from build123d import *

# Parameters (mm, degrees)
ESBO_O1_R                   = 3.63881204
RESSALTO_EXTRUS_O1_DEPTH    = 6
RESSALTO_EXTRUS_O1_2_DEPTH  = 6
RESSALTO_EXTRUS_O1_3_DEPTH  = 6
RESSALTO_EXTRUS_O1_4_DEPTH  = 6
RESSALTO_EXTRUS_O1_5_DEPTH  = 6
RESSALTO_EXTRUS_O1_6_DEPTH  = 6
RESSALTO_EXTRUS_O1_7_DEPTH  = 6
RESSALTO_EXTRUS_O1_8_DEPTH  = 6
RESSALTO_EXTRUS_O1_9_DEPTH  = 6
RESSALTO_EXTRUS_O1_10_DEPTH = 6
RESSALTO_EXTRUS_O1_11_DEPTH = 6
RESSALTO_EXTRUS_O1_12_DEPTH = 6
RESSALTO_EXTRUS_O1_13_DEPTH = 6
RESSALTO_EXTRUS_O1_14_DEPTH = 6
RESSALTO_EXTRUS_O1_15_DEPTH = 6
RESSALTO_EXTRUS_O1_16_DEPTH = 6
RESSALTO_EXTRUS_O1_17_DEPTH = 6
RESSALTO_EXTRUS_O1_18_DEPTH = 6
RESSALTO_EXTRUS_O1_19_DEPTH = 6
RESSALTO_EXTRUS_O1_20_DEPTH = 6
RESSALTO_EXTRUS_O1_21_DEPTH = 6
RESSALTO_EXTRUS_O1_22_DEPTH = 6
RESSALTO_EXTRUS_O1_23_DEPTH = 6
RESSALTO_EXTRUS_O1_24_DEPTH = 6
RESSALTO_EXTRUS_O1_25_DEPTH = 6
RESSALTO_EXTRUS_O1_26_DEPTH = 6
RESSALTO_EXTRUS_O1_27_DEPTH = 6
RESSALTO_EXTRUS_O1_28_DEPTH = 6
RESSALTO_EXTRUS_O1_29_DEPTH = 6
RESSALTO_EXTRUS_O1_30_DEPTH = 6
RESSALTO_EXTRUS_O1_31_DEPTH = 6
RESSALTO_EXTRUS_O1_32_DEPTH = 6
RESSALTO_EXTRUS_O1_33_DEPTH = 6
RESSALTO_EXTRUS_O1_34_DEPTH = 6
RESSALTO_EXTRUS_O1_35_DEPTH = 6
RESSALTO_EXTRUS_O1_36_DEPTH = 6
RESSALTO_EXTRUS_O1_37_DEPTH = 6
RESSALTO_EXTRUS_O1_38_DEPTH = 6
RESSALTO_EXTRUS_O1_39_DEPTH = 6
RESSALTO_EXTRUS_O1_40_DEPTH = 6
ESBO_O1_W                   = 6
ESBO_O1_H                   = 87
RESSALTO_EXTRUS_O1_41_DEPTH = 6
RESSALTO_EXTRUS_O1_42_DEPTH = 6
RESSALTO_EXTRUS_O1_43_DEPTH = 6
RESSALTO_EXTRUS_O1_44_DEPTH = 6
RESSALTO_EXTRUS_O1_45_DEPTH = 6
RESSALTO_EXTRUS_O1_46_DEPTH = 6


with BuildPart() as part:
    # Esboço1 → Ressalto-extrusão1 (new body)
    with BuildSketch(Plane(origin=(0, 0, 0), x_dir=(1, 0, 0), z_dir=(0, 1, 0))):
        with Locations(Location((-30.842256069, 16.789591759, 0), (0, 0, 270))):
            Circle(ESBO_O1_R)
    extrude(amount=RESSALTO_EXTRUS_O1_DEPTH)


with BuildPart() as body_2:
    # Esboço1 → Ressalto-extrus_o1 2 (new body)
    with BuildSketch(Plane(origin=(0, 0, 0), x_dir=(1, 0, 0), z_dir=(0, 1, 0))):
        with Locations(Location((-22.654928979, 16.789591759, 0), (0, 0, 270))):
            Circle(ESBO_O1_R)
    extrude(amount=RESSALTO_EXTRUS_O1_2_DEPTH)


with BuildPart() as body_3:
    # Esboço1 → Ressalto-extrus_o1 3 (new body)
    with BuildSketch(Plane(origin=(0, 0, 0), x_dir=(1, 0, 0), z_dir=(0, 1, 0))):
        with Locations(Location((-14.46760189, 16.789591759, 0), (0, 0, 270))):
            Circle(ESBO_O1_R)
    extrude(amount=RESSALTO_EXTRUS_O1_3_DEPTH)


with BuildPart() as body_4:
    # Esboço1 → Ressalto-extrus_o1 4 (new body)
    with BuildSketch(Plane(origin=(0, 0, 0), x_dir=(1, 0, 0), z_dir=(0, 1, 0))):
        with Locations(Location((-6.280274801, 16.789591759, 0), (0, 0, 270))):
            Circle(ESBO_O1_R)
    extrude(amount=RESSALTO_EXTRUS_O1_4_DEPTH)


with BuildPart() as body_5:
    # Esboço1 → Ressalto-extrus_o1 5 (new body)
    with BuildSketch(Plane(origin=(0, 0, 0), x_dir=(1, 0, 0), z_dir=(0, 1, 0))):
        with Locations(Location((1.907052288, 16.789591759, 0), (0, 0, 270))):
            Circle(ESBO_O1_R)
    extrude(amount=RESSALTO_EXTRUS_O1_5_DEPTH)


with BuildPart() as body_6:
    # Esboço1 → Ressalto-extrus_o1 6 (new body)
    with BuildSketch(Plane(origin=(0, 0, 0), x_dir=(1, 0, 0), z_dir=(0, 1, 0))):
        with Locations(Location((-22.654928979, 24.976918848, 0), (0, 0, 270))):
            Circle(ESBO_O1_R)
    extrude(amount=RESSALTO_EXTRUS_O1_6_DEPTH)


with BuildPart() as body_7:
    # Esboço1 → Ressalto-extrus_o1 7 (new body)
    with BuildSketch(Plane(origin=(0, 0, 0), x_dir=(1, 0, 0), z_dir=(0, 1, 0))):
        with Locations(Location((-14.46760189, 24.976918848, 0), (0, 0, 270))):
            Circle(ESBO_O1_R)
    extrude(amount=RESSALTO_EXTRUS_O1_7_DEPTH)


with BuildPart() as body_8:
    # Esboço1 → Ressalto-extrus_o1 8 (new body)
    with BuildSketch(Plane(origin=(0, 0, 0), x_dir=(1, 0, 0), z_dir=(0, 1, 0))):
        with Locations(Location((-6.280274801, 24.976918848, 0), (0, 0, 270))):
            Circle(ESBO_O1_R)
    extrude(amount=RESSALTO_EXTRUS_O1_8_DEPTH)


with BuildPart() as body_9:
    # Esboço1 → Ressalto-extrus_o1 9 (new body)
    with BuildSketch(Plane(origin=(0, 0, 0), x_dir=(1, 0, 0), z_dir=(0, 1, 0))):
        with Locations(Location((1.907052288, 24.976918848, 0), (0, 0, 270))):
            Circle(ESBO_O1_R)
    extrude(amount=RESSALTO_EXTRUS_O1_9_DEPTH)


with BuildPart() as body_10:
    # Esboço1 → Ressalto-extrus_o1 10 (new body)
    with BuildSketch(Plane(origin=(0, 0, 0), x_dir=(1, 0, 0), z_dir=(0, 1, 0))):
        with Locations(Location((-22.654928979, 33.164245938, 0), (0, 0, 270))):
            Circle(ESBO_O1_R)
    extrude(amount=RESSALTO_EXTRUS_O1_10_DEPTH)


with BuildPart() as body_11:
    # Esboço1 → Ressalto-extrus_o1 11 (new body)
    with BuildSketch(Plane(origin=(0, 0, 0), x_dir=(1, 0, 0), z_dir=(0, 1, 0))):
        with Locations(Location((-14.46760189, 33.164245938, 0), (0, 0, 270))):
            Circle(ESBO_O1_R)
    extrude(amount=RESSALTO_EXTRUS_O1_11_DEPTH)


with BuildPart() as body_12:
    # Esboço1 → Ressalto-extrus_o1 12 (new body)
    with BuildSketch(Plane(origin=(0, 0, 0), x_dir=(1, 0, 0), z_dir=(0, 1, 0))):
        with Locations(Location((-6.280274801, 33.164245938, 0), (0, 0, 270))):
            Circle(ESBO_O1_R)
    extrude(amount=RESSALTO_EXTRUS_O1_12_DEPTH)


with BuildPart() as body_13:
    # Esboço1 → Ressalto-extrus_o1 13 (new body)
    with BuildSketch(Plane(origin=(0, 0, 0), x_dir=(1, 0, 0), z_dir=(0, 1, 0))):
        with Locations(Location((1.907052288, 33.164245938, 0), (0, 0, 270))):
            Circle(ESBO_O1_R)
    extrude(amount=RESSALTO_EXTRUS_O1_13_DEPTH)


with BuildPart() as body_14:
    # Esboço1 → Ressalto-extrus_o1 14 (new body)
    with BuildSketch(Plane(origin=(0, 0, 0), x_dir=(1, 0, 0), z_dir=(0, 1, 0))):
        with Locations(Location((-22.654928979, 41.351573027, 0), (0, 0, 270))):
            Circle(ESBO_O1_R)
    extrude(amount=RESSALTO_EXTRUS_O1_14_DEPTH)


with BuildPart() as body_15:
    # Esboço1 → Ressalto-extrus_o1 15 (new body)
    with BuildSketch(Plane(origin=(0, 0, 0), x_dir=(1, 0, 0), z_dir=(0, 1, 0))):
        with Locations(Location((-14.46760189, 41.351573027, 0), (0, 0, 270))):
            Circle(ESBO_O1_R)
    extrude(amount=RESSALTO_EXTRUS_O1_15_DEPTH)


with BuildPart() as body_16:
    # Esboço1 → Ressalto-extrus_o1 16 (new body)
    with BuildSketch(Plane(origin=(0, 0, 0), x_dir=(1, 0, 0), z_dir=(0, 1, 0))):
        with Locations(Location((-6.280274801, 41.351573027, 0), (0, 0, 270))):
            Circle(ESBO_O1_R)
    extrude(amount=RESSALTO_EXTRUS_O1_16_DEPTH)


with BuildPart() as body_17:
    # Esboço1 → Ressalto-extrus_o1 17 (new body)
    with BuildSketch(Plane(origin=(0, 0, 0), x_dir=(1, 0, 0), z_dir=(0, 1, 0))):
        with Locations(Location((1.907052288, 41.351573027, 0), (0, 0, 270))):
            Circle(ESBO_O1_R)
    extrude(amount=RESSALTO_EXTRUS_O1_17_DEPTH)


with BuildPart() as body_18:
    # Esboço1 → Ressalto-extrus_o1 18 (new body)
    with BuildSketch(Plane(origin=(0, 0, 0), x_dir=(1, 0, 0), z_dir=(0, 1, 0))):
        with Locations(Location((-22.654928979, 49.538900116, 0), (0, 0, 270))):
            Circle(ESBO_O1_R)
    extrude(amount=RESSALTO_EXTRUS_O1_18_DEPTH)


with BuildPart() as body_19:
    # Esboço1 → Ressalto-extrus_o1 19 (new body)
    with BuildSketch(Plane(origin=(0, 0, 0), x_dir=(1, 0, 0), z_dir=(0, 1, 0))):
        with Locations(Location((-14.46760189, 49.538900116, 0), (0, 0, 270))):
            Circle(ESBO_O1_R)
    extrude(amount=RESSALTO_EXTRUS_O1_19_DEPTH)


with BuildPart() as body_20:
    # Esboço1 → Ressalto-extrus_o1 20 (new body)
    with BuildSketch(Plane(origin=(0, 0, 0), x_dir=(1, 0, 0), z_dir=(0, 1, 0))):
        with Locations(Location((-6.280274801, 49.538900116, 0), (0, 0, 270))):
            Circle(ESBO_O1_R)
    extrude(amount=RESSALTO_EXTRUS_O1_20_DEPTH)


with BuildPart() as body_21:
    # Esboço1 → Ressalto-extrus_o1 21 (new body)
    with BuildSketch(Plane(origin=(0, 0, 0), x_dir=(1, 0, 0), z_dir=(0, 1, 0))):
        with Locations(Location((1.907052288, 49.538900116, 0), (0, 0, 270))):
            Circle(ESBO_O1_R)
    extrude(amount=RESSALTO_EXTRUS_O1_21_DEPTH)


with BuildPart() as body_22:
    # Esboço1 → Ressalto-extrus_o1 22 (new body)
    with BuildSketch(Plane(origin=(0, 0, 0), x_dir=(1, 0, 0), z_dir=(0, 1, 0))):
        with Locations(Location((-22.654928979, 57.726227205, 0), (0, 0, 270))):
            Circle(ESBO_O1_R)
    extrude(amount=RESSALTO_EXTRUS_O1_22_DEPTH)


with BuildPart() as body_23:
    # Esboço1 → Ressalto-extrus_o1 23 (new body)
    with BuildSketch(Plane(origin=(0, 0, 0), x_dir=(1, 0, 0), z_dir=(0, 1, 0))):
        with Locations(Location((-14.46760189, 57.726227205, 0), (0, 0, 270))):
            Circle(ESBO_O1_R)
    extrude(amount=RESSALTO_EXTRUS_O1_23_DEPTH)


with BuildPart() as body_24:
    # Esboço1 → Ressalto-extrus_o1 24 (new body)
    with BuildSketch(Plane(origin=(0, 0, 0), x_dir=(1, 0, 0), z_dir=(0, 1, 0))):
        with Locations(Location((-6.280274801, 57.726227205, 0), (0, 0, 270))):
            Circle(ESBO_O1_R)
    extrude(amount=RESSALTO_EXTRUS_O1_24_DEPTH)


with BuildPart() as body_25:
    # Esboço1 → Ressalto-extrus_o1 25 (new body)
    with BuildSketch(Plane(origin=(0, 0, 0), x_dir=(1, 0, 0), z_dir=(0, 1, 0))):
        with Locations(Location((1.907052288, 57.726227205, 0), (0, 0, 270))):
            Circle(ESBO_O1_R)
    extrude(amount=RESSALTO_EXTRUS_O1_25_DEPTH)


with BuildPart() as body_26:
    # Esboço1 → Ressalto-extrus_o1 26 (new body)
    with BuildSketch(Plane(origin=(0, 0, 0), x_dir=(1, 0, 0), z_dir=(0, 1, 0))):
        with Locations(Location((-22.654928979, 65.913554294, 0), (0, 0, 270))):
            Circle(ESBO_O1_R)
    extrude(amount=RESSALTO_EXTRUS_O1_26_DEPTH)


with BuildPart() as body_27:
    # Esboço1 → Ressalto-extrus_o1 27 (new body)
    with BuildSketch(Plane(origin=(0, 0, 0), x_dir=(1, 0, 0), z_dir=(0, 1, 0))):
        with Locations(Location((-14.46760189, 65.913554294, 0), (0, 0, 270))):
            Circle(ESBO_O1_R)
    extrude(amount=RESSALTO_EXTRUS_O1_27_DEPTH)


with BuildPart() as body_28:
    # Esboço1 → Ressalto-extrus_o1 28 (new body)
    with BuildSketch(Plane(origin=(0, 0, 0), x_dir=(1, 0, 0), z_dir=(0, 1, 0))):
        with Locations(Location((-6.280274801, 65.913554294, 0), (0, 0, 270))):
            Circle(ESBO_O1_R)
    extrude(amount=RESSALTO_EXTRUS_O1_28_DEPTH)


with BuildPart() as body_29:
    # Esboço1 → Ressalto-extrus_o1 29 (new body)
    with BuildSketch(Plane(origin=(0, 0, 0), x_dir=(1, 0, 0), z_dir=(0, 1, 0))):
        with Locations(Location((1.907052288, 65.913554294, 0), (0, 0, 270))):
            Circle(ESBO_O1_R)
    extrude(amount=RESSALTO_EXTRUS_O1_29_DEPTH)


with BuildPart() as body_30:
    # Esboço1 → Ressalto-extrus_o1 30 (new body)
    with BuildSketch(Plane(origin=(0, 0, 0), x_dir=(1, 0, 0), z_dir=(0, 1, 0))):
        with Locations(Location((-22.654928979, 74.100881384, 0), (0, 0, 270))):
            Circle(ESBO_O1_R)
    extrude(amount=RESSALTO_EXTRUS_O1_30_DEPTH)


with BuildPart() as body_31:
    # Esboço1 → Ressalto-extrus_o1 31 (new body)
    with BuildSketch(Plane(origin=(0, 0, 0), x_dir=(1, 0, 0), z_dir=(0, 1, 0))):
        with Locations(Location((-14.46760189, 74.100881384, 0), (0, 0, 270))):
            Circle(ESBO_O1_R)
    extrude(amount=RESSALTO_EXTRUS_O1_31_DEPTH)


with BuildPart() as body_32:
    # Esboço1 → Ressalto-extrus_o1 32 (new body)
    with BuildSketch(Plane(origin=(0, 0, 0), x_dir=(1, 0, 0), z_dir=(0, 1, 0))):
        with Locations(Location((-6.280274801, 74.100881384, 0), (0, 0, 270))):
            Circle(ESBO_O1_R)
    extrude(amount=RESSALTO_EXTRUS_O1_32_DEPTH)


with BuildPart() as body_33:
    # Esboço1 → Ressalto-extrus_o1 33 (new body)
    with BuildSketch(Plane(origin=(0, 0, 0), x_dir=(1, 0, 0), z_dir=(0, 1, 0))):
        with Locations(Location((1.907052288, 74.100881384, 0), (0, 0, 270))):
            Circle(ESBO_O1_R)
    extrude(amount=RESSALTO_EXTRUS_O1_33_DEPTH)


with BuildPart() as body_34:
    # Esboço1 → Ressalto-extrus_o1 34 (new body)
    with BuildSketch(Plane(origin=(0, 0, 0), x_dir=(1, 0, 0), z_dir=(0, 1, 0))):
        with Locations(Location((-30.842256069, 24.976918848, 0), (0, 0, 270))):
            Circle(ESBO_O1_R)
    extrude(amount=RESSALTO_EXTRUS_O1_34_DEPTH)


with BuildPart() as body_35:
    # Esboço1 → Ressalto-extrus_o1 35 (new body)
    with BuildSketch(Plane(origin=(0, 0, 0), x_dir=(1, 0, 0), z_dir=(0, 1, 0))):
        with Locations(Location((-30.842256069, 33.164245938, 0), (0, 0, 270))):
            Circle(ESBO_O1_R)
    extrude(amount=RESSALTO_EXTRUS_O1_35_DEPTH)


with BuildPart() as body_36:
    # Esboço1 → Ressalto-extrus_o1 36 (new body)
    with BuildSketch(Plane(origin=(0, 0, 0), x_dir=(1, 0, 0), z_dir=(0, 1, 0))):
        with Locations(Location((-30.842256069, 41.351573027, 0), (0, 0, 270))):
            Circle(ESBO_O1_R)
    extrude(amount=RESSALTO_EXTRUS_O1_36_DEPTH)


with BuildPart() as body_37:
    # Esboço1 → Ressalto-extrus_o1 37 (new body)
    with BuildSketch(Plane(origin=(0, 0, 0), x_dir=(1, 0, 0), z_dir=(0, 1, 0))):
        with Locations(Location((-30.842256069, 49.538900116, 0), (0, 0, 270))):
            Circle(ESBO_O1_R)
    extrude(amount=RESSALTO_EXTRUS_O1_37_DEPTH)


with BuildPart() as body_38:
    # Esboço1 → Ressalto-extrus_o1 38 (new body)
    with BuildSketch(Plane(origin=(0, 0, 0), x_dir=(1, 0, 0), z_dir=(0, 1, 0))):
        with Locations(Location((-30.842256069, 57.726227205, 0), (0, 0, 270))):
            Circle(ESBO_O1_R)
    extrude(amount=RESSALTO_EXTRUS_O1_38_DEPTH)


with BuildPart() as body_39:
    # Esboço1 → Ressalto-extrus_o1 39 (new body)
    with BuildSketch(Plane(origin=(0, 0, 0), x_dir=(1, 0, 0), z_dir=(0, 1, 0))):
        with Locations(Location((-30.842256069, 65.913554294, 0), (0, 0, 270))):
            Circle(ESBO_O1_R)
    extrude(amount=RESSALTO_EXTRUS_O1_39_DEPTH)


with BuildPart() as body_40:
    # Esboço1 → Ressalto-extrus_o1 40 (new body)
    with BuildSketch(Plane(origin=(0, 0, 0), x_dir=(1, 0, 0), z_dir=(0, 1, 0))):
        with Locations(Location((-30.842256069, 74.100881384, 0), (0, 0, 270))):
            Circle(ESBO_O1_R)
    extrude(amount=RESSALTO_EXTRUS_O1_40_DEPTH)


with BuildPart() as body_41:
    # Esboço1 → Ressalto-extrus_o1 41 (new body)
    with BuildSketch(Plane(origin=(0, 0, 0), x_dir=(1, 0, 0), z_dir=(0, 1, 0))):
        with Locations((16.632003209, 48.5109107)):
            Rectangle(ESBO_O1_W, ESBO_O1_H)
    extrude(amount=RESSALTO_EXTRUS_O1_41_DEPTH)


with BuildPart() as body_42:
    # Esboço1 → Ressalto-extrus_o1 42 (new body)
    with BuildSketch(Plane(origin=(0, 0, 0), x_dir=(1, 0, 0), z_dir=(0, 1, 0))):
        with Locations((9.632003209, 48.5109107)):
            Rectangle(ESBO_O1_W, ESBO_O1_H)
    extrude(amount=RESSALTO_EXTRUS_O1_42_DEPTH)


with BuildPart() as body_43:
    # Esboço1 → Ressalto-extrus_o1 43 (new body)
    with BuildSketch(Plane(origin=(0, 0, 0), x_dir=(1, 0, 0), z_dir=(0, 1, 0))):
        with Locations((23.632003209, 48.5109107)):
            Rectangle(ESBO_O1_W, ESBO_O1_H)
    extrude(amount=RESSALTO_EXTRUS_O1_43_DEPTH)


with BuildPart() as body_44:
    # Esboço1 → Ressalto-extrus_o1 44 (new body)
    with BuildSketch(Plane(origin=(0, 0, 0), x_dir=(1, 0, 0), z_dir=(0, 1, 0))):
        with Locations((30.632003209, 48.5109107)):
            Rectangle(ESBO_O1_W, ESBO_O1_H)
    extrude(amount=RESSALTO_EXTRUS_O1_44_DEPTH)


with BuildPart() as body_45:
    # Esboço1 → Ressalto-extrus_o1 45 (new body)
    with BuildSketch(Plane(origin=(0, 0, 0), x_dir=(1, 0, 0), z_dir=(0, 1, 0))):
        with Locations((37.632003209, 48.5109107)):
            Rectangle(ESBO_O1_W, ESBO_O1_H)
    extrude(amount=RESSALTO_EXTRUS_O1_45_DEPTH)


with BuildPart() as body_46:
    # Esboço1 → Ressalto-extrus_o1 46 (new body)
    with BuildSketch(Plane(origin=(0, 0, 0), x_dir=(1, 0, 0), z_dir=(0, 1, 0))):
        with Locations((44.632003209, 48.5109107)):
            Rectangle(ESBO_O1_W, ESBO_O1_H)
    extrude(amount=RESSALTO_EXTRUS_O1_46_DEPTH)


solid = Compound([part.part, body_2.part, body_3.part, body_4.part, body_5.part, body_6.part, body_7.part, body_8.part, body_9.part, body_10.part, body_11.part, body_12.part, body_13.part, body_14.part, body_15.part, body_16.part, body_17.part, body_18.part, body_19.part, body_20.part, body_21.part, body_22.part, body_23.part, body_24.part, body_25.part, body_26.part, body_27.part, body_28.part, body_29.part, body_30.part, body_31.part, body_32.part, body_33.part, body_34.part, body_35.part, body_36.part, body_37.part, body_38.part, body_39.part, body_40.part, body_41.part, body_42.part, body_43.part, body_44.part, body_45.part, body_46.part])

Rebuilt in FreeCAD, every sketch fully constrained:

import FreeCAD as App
import Part
import Sketcher

doc = App.newDocument("Part")
body = doc.addObject("PartDesign::Body", "Body")

# Sketch on XZ plane
sketch1 = body.newObject("Sketcher::SketchObject", "Sketch")
sketch1.AttachmentSupport = (doc.getObject("XZ_Plane"), [""])
sketch1.MapMode = "FlatFace"
sketch1.addGeometry(Part.Circle(App.Vector(-30.842256, -16.789592, 0), App.Vector(0, 0, 1), 3.638812), False)
sketch1.addConstraint(Sketcher.Constraint("Diameter", 0, 7.277624))
sketch1.addConstraint(Sketcher.Constraint("DistanceY", 0, 3, -1, 1, 16.789592))
sketch1.addConstraint(Sketcher.Constraint("DistanceX", 0, 3, -1, 1, 30.842256))
pad1 = body.newObject("PartDesign::Pad", "Pad")
pad1.Profile = sketch1
pad1.Length = 6
pad1.Reversed = True
body2 = doc.addObject("PartDesign::Body", "Body001")

# Sketch on XZ plane
sketch2 = body2.newObject("Sketcher::SketchObject", "Sketch001")
sketch2.AttachmentSupport = (doc.getObject("XZ_Plane001"), [""])
sketch2.MapMode = "FlatFace"
sketch2.addGeometry(Part.Circle(App.Vector(-22.654929, -16.789592, 0), App.Vector(0, 0, 1), 3.638812), False)
sketch2.addConstraint(Sketcher.Constraint("Diameter", 0, 7.277624))
sketch2.addConstraint(Sketcher.Constraint("DistanceX", 0, 3, -1, 1, 22.654929))
sketch2.addConstraint(Sketcher.Constraint("DistanceY", 0, 3, -1, 1, 16.789592))
pad2 = body2.newObject("PartDesign::Pad", "Pad001")
pad2.Profile = sketch2
pad2.Length = 6
pad2.Reversed = True
body3 = doc.addObject("PartDesign::Body", "Body002")

# Sketch on XZ plane
sketch3 = body3.newObject("Sketcher::SketchObject", "Sketch002")
sketch3.AttachmentSupport = (doc.getObject("XZ_Plane002"), [""])
sketch3.MapMode = "FlatFace"
sketch3.addGeometry(Part.Circle(App.Vector(-14.467602, -16.789592, 0), App.Vector(0, 0, 1), 3.638812), False)
sketch3.addConstraint(Sketcher.Constraint("Diameter", 0, 7.277624))
sketch3.addConstraint(Sketcher.Constraint("DistanceX", 0, 3, -1, 1, 14.467602))
sketch3.addConstraint(Sketcher.Constraint("DistanceY", 0, 3, -1, 1, 16.789592))
pad3 = body3.newObject("PartDesign::Pad", "Pad002")
pad3.Profile = sketch3
pad3.Length = 6
pad3.Reversed = True
body4 = doc.addObject("PartDesign::Body", "Body003")

# Sketch on XZ plane
sketch4 = body4.newObject("Sketcher::SketchObject", "Sketch003")
sketch4.AttachmentSupport = (doc.getObject("XZ_Plane003"), [""])
sketch4.MapMode = "FlatFace"
sketch4.addGeometry(Part.Circle(App.Vector(-6.280275, -16.789592, 0), App.Vector(0, 0, 1), 3.638812), False)
sketch4.addConstraint(Sketcher.Constraint("Diameter", 0, 7.277624))
sketch4.addConstraint(Sketcher.Constraint("DistanceY", 0, 3, -1, 1, 16.789592))
sketch4.addConstraint(Sketcher.Constraint("DistanceX", 0, 3, -1, 1, 6.280275))
pad4 = body4.newObject("PartDesign::Pad", "Pad003")
pad4.Profile = sketch4
pad4.Length = 6
pad4.Reversed = True
body5 = doc.addObject("PartDesign::Body", "Body004")

# Sketch on XZ plane
sketch5 = body5.newObject("Sketcher::SketchObject", "Sketch004")
sketch5.AttachmentSupport = (doc.getObject("XZ_Plane004"), [""])
sketch5.MapMode = "FlatFace"
sketch5.addGeometry(Part.Circle(App.Vector(1.907052, -16.789592, 0), App.Vector(0, 0, 1), 3.638812), False)
sketch5.addConstraint(Sketcher.Constraint("Diameter", 0, 7.277624))
sketch5.addConstraint(Sketcher.Constraint("DistanceY", 0, 3, -1, 1, 16.789592))
sketch5.addConstraint(Sketcher.Constraint("DistanceX", -1, 1, 0, 3, 1.907052))
pad5 = body5.newObject("PartDesign::Pad", "Pad004")
pad5.Profile = sketch5
pad5.Length = 6
pad5.Reversed = True
body6 = doc.addObject("PartDesign::Body", "Body005")

# Sketch on XZ plane
sketch6 = body6.newObject("Sketcher::SketchObject", "Sketch005")
sketch6.AttachmentSupport = (doc.getObject("XZ_Plane005"), [""])
sketch6.MapMode = "FlatFace"
sketch6.addGeometry(Part.Circle(App.Vector(-22.654929, -24.976919, 0), App.Vector(0, 0, 1), 3.638812), False)
sketch6.addConstraint(Sketcher.Constraint("Diameter", 0, 7.277624))
sketch6.addConstraint(Sketcher.Constraint("DistanceX", 0, 3, -1, 1, 22.654929))
sketch6.addConstraint(Sketcher.Constraint("DistanceY", 0, 3, -1, 1, 24.976919))
pad6 = body6.newObject("PartDesign::Pad", "Pad005")
pad6.Profile = sketch6
pad6.Length = 6
pad6.Reversed = True
body7 = doc.addObject("PartDesign::Body", "Body006")

# Sketch on XZ plane
sketch7 = body7.newObject("Sketcher::SketchObject", "Sketch006")
sketch7.AttachmentSupport = (doc.getObject("XZ_Plane006"), [""])
sketch7.MapMode = "FlatFace"
sketch7.addGeometry(Part.Circle(App.Vector(-14.467602, -24.976919, 0), App.Vector(0, 0, 1), 3.638812), False)
sketch7.addConstraint(Sketcher.Constraint("Diameter", 0, 7.277624))
sketch7.addConstraint(Sketcher.Constraint("DistanceX", 0, 3, -1, 1, 14.467602))
sketch7.addConstraint(Sketcher.Constraint("DistanceY", 0, 3, -1, 1, 24.976919))
pad7 = body7.newObject("PartDesign::Pad", "Pad006")
pad7.Profile = sketch7
pad7.Length = 6
pad7.Reversed = True
body8 = doc.addObject("PartDesign::Body", "Body007")

# Sketch on XZ plane
sketch8 = body8.newObject("Sketcher::SketchObject", "Sketch007")
sketch8.AttachmentSupport = (doc.getObject("XZ_Plane007"), [""])
sketch8.MapMode = "FlatFace"
sketch8.addGeometry(Part.Circle(App.Vector(-6.280275, -24.976919, 0), App.Vector(0, 0, 1), 3.638812), False)
sketch8.addConstraint(Sketcher.Constraint("Diameter", 0, 7.277624))
sketch8.addConstraint(Sketcher.Constraint("DistanceY", 0, 3, -1, 1, 24.976919))
sketch8.addConstraint(Sketcher.Constraint("DistanceX", 0, 3, -1, 1, 6.280275))
pad8 = body8.newObject("PartDesign::Pad", "Pad007")
pad8.Profile = sketch8
pad8.Length = 6
pad8.Reversed = True
body9 = doc.addObject("PartDesign::Body", "Body008")

# Sketch on XZ plane
sketch9 = body9.newObject("Sketcher::SketchObject", "Sketch008")
sketch9.AttachmentSupport = (doc.getObject("XZ_Plane008"), [""])
sketch9.MapMode = "FlatFace"
sketch9.addGeometry(Part.Circle(App.Vector(1.907052, -24.976919, 0), App.Vector(0, 0, 1), 3.638812), False)
sketch9.addConstraint(Sketcher.Constraint("Diameter", 0, 7.277624))
sketch9.addConstraint(Sketcher.Constraint("DistanceY", 0, 3, -1, 1, 24.976919))
sketch9.addConstraint(Sketcher.Constraint("DistanceX", -1, 1, 0, 3, 1.907052))
pad9 = body9.newObject("PartDesign::Pad", "Pad008")
pad9.Profile = sketch9
pad9.Length = 6
pad9.Reversed = True
body10 = doc.addObject("PartDesign::Body", "Body009")

# Sketch on XZ plane
sketch10 = body10.newObject("Sketcher::SketchObject", "Sketch009")
sketch10.AttachmentSupport = (doc.getObject("XZ_Plane009"), [""])
sketch10.MapMode = "FlatFace"
sketch10.addGeometry(Part.Circle(App.Vector(-22.654929, -33.164246, 0), App.Vector(0, 0, 1), 3.638812), False)
sketch10.addConstraint(Sketcher.Constraint("Diameter", 0, 7.277624))
sketch10.addConstraint(Sketcher.Constraint("DistanceX", 0, 3, -1, 1, 22.654929))
sketch10.addConstraint(Sketcher.Constraint("DistanceY", 0, 3, -1, 1, 33.164246))
pad10 = body10.newObject("PartDesign::Pad", "Pad009")
pad10.Profile = sketch10
pad10.Length = 6
pad10.Reversed = True
body11 = doc.addObject("PartDesign::Body", "Body010")

# Sketch on XZ plane
sketch11 = body11.newObject("Sketcher::SketchObject", "Sketch010")
sketch11.AttachmentSupport = (doc.getObject("XZ_Plane010"), [""])
sketch11.MapMode = "FlatFace"
sketch11.addGeometry(Part.Circle(App.Vector(-14.467602, -33.164246, 0), App.Vector(0, 0, 1), 3.638812), False)
sketch11.addConstraint(Sketcher.Constraint("Diameter", 0, 7.277624))
sketch11.addConstraint(Sketcher.Constraint("DistanceX", 0, 3, -1, 1, 14.467602))
sketch11.addConstraint(Sketcher.Constraint("DistanceY", 0, 3, -1, 1, 33.164246))
pad11 = body11.newObject("PartDesign::Pad", "Pad010")
pad11.Profile = sketch11
pad11.Length = 6
pad11.Reversed = True
body12 = doc.addObject("PartDesign::Body", "Body011")

# Sketch on XZ plane
sketch12 = body12.newObject("Sketcher::SketchObject", "Sketch011")
sketch12.AttachmentSupport = (doc.getObject("XZ_Plane011"), [""])
sketch12.MapMode = "FlatFace"
sketch12.addGeometry(Part.Circle(App.Vector(-6.280275, -33.164246, 0), App.Vector(0, 0, 1), 3.638812), False)
sketch12.addConstraint(Sketcher.Constraint("Diameter", 0, 7.277624))
sketch12.addConstraint(Sketcher.Constraint("DistanceX", 0, 3, -1, 1, 6.280275))
sketch12.addConstraint(Sketcher.Constraint("DistanceY", 0, 3, -1, 1, 33.164246))
pad12 = body12.newObject("PartDesign::Pad", "Pad011")
pad12.Profile = sketch12
pad12.Length = 6
pad12.Reversed = True
body13 = doc.addObject("PartDesign::Body", "Body012")

# Sketch on XZ plane
sketch13 = body13.newObject("Sketcher::SketchObject", "Sketch012")
sketch13.AttachmentSupport = (doc.getObject("XZ_Plane012"), [""])
sketch13.MapMode = "FlatFace"
sketch13.addGeometry(Part.Circle(App.Vector(1.907052, -33.164246, 0), App.Vector(0, 0, 1), 3.638812), False)
sketch13.addConstraint(Sketcher.Constraint("Diameter", 0, 7.277624))
sketch13.addConstraint(Sketcher.Constraint("DistanceX", -1, 1, 0, 3, 1.907052))
sketch13.addConstraint(Sketcher.Constraint("DistanceY", 0, 3, -1, 1, 33.164246))
pad13 = body13.newObject("PartDesign::Pad", "Pad012")
pad13.Profile = sketch13
pad13.Length = 6
pad13.Reversed = True
body14 = doc.addObject("PartDesign::Body", "Body013")

# Sketch on XZ plane
sketch14 = body14.newObject("Sketcher::SketchObject", "Sketch013")
sketch14.AttachmentSupport = (doc.getObject("XZ_Plane013"), [""])
sketch14.MapMode = "FlatFace"
sketch14.addGeometry(Part.Circle(App.Vector(-22.654929, -41.351573, 0), App.Vector(0, 0, 1), 3.638812), False)
sketch14.addConstraint(Sketcher.Constraint("Diameter", 0, 7.277624))
sketch14.addConstraint(Sketcher.Constraint("DistanceX", 0, 3, -1, 1, 22.654929))
sketch14.addConstraint(Sketcher.Constraint("DistanceY", 0, 3, -1, 1, 41.351573))
pad14 = body14.newObject("PartDesign::Pad", "Pad013")
pad14.Profile = sketch14
pad14.Length = 6
pad14.Reversed = True
body15 = doc.addObject("PartDesign::Body", "Body014")

# Sketch on XZ plane
sketch15 = body15.newObject("Sketcher::SketchObject", "Sketch014")
sketch15.AttachmentSupport = (doc.getObject("XZ_Plane014"), [""])
sketch15.MapMode = "FlatFace"
sketch15.addGeometry(Part.Circle(App.Vector(-14.467602, -41.351573, 0), App.Vector(0, 0, 1), 3.638812), False)
sketch15.addConstraint(Sketcher.Constraint("Diameter", 0, 7.277624))
sketch15.addConstraint(Sketcher.Constraint("DistanceX", 0, 3, -1, 1, 14.467602))
sketch15.addConstraint(Sketcher.Constraint("DistanceY", 0, 3, -1, 1, 41.351573))
pad15 = body15.newObject("PartDesign::Pad", "Pad014")
pad15.Profile = sketch15
pad15.Length = 6
pad15.Reversed = True
body16 = doc.addObject("PartDesign::Body", "Body015")

# Sketch on XZ plane
sketch16 = body16.newObject("Sketcher::SketchObject", "Sketch015")
sketch16.AttachmentSupport = (doc.getObject("XZ_Plane015"), [""])
sketch16.MapMode = "FlatFace"
sketch16.addGeometry(Part.Circle(App.Vector(-6.280275, -41.351573, 0), App.Vector(0, 0, 1), 3.638812), False)
sketch16.addConstraint(Sketcher.Constraint("Diameter", 0, 7.277624))
sketch16.addConstraint(Sketcher.Constraint("DistanceX", 0, 3, -1, 1, 6.280275))
sketch16.addConstraint(Sketcher.Constraint("DistanceY", 0, 3, -1, 1, 41.351573))
pad16 = body16.newObject("PartDesign::Pad", "Pad015")
pad16.Profile = sketch16
pad16.Length = 6
pad16.Reversed = True
body17 = doc.addObject("PartDesign::Body", "Body016")

# Sketch on XZ plane
sketch17 = body17.newObject("Sketcher::SketchObject", "Sketch016")
sketch17.AttachmentSupport = (doc.getObject("XZ_Plane016"), [""])
sketch17.MapMode = "FlatFace"
sketch17.addGeometry(Part.Circle(App.Vector(1.907052, -41.351573, 0), App.Vector(0, 0, 1), 3.638812), False)
sketch17.addConstraint(Sketcher.Constraint("Diameter", 0, 7.277624))
sketch17.addConstraint(Sketcher.Constraint("DistanceX", -1, 1, 0, 3, 1.907052))
sketch17.addConstraint(Sketcher.Constraint("DistanceY", 0, 3, -1, 1, 41.351573))
pad17 = body17.newObject("PartDesign::Pad", "Pad016")
pad17.Profile = sketch17
pad17.Length = 6
pad17.Reversed = True
body18 = doc.addObject("PartDesign::Body", "Body017")

# Sketch on XZ plane
sketch18 = body18.newObject("Sketcher::SketchObject", "Sketch017")
sketch18.AttachmentSupport = (doc.getObject("XZ_Plane017"), [""])
sketch18.MapMode = "FlatFace"
sketch18.addGeometry(Part.Circle(App.Vector(-22.654929, -49.5389, 0), App.Vector(0, 0, 1), 3.638812), False)
sketch18.addConstraint(Sketcher.Constraint("Diameter", 0, 7.277624))
sketch18.addConstraint(Sketcher.Constraint("DistanceY", 0, 3, -1, 1, 49.5389))
sketch18.addConstraint(Sketcher.Constraint("DistanceX", 0, 3, -1, 1, 22.654929))
pad18 = body18.newObject("PartDesign::Pad", "Pad017")
pad18.Profile = sketch18
pad18.Length = 6
pad18.Reversed = True
body19 = doc.addObject("PartDesign::Body", "Body018")

# Sketch on XZ plane
sketch19 = body19.newObject("Sketcher::SketchObject", "Sketch018")
sketch19.AttachmentSupport = (doc.getObject("XZ_Plane018"), [""])
sketch19.MapMode = "FlatFace"
sketch19.addGeometry(Part.Circle(App.Vector(-14.467602, -49.5389, 0), App.Vector(0, 0, 1), 3.638812), False)
sketch19.addConstraint(Sketcher.Constraint("Diameter", 0, 7.277624))
sketch19.addConstraint(Sketcher.Constraint("DistanceX", 0, 3, -1, 1, 14.467602))
sketch19.addConstraint(Sketcher.Constraint("DistanceY", 0, 3, -1, 1, 49.5389))
pad19 = body19.newObject("PartDesign::Pad", "Pad018")
pad19.Profile = sketch19
pad19.Length = 6
pad19.Reversed = True
body20 = doc.addObject("PartDesign::Body", "Body019")

# Sketch on XZ plane
sketch20 = body20.newObject("Sketcher::SketchObject", "Sketch019")
sketch20.AttachmentSupport = (doc.getObject("XZ_Plane019"), [""])
sketch20.MapMode = "FlatFace"
sketch20.addGeometry(Part.Circle(App.Vector(-6.280275, -49.5389, 0), App.Vector(0, 0, 1), 3.638812), False)
sketch20.addConstraint(Sketcher.Constraint("Diameter", 0, 7.277624))
sketch20.addConstraint(Sketcher.Constraint("DistanceY", 0, 3, -1, 1, 49.5389))
sketch20.addConstraint(Sketcher.Constraint("DistanceX", 0, 3, -1, 1, 6.280275))
pad20 = body20.newObject("PartDesign::Pad", "Pad019")
pad20.Profile = sketch20
pad20.Length = 6
pad20.Reversed = True
body21 = doc.addObject("PartDesign::Body", "Body020")

# Sketch on XZ plane
sketch21 = body21.newObject("Sketcher::SketchObject", "Sketch020")
sketch21.AttachmentSupport = (doc.getObject("XZ_Plane020"), [""])
sketch21.MapMode = "FlatFace"
sketch21.addGeometry(Part.Circle(App.Vector(1.907052, -49.5389, 0), App.Vector(0, 0, 1), 3.638812), False)
sketch21.addConstraint(Sketcher.Constraint("Diameter", 0, 7.277624))
sketch21.addConstraint(Sketcher.Constraint("DistanceY", 0, 3, -1, 1, 49.5389))
sketch21.addConstraint(Sketcher.Constraint("DistanceX", -1, 1, 0, 3, 1.907052))
pad21 = body21.newObject("PartDesign::Pad", "Pad020")
pad21.Profile = sketch21
pad21.Length = 6
pad21.Reversed = True
body22 = doc.addObject("PartDesign::Body", "Body021")

# Sketch on XZ plane
sketch22 = body22.newObject("Sketcher::SketchObject", "Sketch021")
sketch22.AttachmentSupport = (doc.getObject("XZ_Plane021"), [""])
sketch22.MapMode = "FlatFace"
sketch22.addGeometry(Part.Circle(App.Vector(-22.654929, -57.726227, 0), App.Vector(0, 0, 1), 3.638812), False)
sketch22.addConstraint(Sketcher.Constraint("Diameter", 0, 7.277624))
sketch22.addConstraint(Sketcher.Constraint("DistanceX", 0, 3, -1, 1, 22.654929))
sketch22.addConstraint(Sketcher.Constraint("DistanceY", 0, 3, -1, 1, 57.726227))
pad22 = body22.newObject("PartDesign::Pad", "Pad021")
pad22.Profile = sketch22
pad22.Length = 6
pad22.Reversed = True
body23 = doc.addObject("PartDesign::Body", "Body022")

# Sketch on XZ plane
sketch23 = body23.newObject("Sketcher::SketchObject", "Sketch022")
sketch23.AttachmentSupport = (doc.getObject("XZ_Plane022"), [""])
sketch23.MapMode = "FlatFace"
sketch23.addGeometry(Part.Circle(App.Vector(-14.467602, -57.726227, 0), App.Vector(0, 0, 1), 3.638812), False)
sketch23.addConstraint(Sketcher.Constraint("Diameter", 0, 7.277624))
sketch23.addConstraint(Sketcher.Constraint("DistanceX", 0, 3, -1, 1, 14.467602))
sketch23.addConstraint(Sketcher.Constraint("DistanceY", 0, 3, -1, 1, 57.726227))
pad23 = body23.newObject("PartDesign::Pad", "Pad022")
pad23.Profile = sketch23
pad23.Length = 6
pad23.Reversed = True
body24 = doc.addObject("PartDesign::Body", "Body023")

# Sketch on XZ plane
sketch24 = body24.newObject("Sketcher::SketchObject", "Sketch023")
sketch24.AttachmentSupport = (doc.getObject("XZ_Plane023"), [""])
sketch24.MapMode = "FlatFace"
sketch24.addGeometry(Part.Circle(App.Vector(-6.280275, -57.726227, 0), App.Vector(0, 0, 1), 3.638812), False)
sketch24.addConstraint(Sketcher.Constraint("Diameter", 0, 7.277624))
sketch24.addConstraint(Sketcher.Constraint("DistanceX", 0, 3, -1, 1, 6.280275))
sketch24.addConstraint(Sketcher.Constraint("DistanceY", 0, 3, -1, 1, 57.726227))
pad24 = body24.newObject("PartDesign::Pad", "Pad023")
pad24.Profile = sketch24
pad24.Length = 6
pad24.Reversed = True
body25 = doc.addObject("PartDesign::Body", "Body024")

# Sketch on XZ plane
sketch25 = body25.newObject("Sketcher::SketchObject", "Sketch024")
sketch25.AttachmentSupport = (doc.getObject("XZ_Plane024"), [""])
sketch25.MapMode = "FlatFace"
sketch25.addGeometry(Part.Circle(App.Vector(1.907052, -57.726227, 0), App.Vector(0, 0, 1), 3.638812), False)
sketch25.addConstraint(Sketcher.Constraint("Diameter", 0, 7.277624))
sketch25.addConstraint(Sketcher.Constraint("DistanceX", -1, 1, 0, 3, 1.907052))
sketch25.addConstraint(Sketcher.Constraint("DistanceY", 0, 3, -1, 1, 57.726227))
pad25 = body25.newObject("PartDesign::Pad", "Pad024")
pad25.Profile = sketch25
pad25.Length = 6
pad25.Reversed = True
body26 = doc.addObject("PartDesign::Body", "Body025")

# Sketch on XZ plane
sketch26 = body26.newObject("Sketcher::SketchObject", "Sketch025")
sketch26.AttachmentSupport = (doc.getObject("XZ_Plane025"), [""])
sketch26.MapMode = "FlatFace"
sketch26.addGeometry(Part.Circle(App.Vector(-22.654929, -65.913554, 0), App.Vector(0, 0, 1), 3.638812), False)
sketch26.addConstraint(Sketcher.Constraint("Diameter", 0, 7.277624))
sketch26.addConstraint(Sketcher.Constraint("DistanceX", 0, 3, -1, 1, 22.654929))
sketch26.addConstraint(Sketcher.Constraint("DistanceY", 0, 3, -1, 1, 65.913554))
pad26 = body26.newObject("PartDesign::Pad", "Pad025")
pad26.Profile = sketch26
pad26.Length = 6
pad26.Reversed = True
body27 = doc.addObject("PartDesign::Body", "Body026")

# Sketch on XZ plane
sketch27 = body27.newObject("Sketcher::SketchObject", "Sketch026")
sketch27.AttachmentSupport = (doc.getObject("XZ_Plane026"), [""])
sketch27.MapMode = "FlatFace"
sketch27.addGeometry(Part.Circle(App.Vector(-14.467602, -65.913554, 0), App.Vector(0, 0, 1), 3.638812), False)
sketch27.addConstraint(Sketcher.Constraint("Diameter", 0, 7.277624))
sketch27.addConstraint(Sketcher.Constraint("DistanceX", 0, 3, -1, 1, 14.467602))
sketch27.addConstraint(Sketcher.Constraint("DistanceY", 0, 3, -1, 1, 65.913554))
pad27 = body27.newObject("PartDesign::Pad", "Pad026")
pad27.Profile = sketch27
pad27.Length = 6
pad27.Reversed = True
body28 = doc.addObject("PartDesign::Body", "Body027")

# Sketch on XZ plane
sketch28 = body28.newObject("Sketcher::SketchObject", "Sketch027")
sketch28.AttachmentSupport = (doc.getObject("XZ_Plane027"), [""])
sketch28.MapMode = "FlatFace"
sketch28.addGeometry(Part.Circle(App.Vector(-6.280275, -65.913554, 0), App.Vector(0, 0, 1), 3.638812), False)
sketch28.addConstraint(Sketcher.Constraint("Diameter", 0, 7.277624))
sketch28.addConstraint(Sketcher.Constraint("DistanceX", 0, 3, -1, 1, 6.280275))
sketch28.addConstraint(Sketcher.Constraint("DistanceY", 0, 3, -1, 1, 65.913554))
pad28 = body28.newObject("PartDesign::Pad", "Pad027")
pad28.Profile = sketch28
pad28.Length = 6
pad28.Reversed = True
body29 = doc.addObject("PartDesign::Body", "Body028")

# Sketch on XZ plane
sketch29 = body29.newObject("Sketcher::SketchObject", "Sketch028")
sketch29.AttachmentSupport = (doc.getObject("XZ_Plane028"), [""])
sketch29.MapMode = "FlatFace"
sketch29.addGeometry(Part.Circle(App.Vector(1.907052, -65.913554, 0), App.Vector(0, 0, 1), 3.638812), False)
sketch29.addConstraint(Sketcher.Constraint("Diameter", 0, 7.277624))
sketch29.addConstraint(Sketcher.Constraint("DistanceX", -1, 1, 0, 3, 1.907052))
sketch29.addConstraint(Sketcher.Constraint("DistanceY", 0, 3, -1, 1, 65.913554))
pad29 = body29.newObject("PartDesign::Pad", "Pad028")
pad29.Profile = sketch29
pad29.Length = 6
pad29.Reversed = True
body30 = doc.addObject("PartDesign::Body", "Body029")

# Sketch on XZ plane
sketch30 = body30.newObject("Sketcher::SketchObject", "Sketch029")
sketch30.AttachmentSupport = (doc.getObject("XZ_Plane029"), [""])
sketch30.MapMode = "FlatFace"
sketch30.addGeometry(Part.Circle(App.Vector(-22.654929, -74.100881, 0), App.Vector(0, 0, 1), 3.638812), False)
sketch30.addConstraint(Sketcher.Constraint("Diameter", 0, 7.277624))
sketch30.addConstraint(Sketcher.Constraint("DistanceX", 0, 3, -1, 1, 22.654929))
sketch30.addConstraint(Sketcher.Constraint("DistanceY", 0, 3, -1, 1, 74.100881))
pad30 = body30.newObject("PartDesign::Pad", "Pad029")
pad30.Profile = sketch30
pad30.Length = 6
pad30.Reversed = True
body31 = doc.addObject("PartDesign::Body", "Body030")

# Sketch on XZ plane
sketch31 = body31.newObject("Sketcher::SketchObject", "Sketch030")
sketch31.AttachmentSupport = (doc.getObject("XZ_Plane030"), [""])
sketch31.MapMode = "FlatFace"
sketch31.addGeometry(Part.Circle(App.Vector(-14.467602, -74.100881, 0), App.Vector(0, 0, 1), 3.638812), False)
sketch31.addConstraint(Sketcher.Constraint("Diameter", 0, 7.277624))
sketch31.addConstraint(Sketcher.Constraint("DistanceX", 0, 3, -1, 1, 14.467602))
sketch31.addConstraint(Sketcher.Constraint("DistanceY", 0, 3, -1, 1, 74.100881))
pad31 = body31.newObject("PartDesign::Pad", "Pad030")
pad31.Profile = sketch31
pad31.Length = 6
pad31.Reversed = True
body32 = doc.addObject("PartDesign::Body", "Body031")

# Sketch on XZ plane
sketch32 = body32.newObject("Sketcher::SketchObject", "Sketch031")
sketch32.AttachmentSupport = (doc.getObject("XZ_Plane031"), [""])
sketch32.MapMode = "FlatFace"
sketch32.addGeometry(Part.Circle(App.Vector(-6.280275, -74.100881, 0), App.Vector(0, 0, 1), 3.638812), False)
sketch32.addConstraint(Sketcher.Constraint("Diameter", 0, 7.277624))
sketch32.addConstraint(Sketcher.Constraint("DistanceY", 0, 3, -1, 1, 74.100881))
sketch32.addConstraint(Sketcher.Constraint("DistanceX", 0, 3, -1, 1, 6.280275))
pad32 = body32.newObject("PartDesign::Pad", "Pad031")
pad32.Profile = sketch32
pad32.Length = 6
pad32.Reversed = True
body33 = doc.addObject("PartDesign::Body", "Body032")

# Sketch on XZ plane
sketch33 = body33.newObject("Sketcher::SketchObject", "Sketch032")
sketch33.AttachmentSupport = (doc.getObject("XZ_Plane032"), [""])
sketch33.MapMode = "FlatFace"
sketch33.addGeometry(Part.Circle(App.Vector(1.907052, -74.100881, 0), App.Vector(0, 0, 1), 3.638812), False)
sketch33.addConstraint(Sketcher.Constraint("Diameter", 0, 7.277624))
sketch33.addConstraint(Sketcher.Constraint("DistanceY", 0, 3, -1, 1, 74.100881))
sketch33.addConstraint(Sketcher.Constraint("DistanceX", -1, 1, 0, 3, 1.907052))
pad33 = body33.newObject("PartDesign::Pad", "Pad032")
pad33.Profile = sketch33
pad33.Length = 6
pad33.Reversed = True
body34 = doc.addObject("PartDesign::Body", "Body033")

# Sketch on XZ plane
sketch34 = body34.newObject("Sketcher::SketchObject", "Sketch033")
sketch34.AttachmentSupport = (doc.getObject("XZ_Plane033"), [""])
sketch34.MapMode = "FlatFace"
sketch34.addGeometry(Part.Circle(App.Vector(-30.842256, -24.976919, 0), App.Vector(0, 0, 1), 3.638812), False)
sketch34.addConstraint(Sketcher.Constraint("Diameter", 0, 7.277624))
sketch34.addConstraint(Sketcher.Constraint("DistanceY", 0, 3, -1, 1, 24.976919))
sketch34.addConstraint(Sketcher.Constraint("DistanceX", 0, 3, -1, 1, 30.842256))
pad34 = body34.newObject("PartDesign::Pad", "Pad033")
pad34.Profile = sketch34
pad34.Length = 6
pad34.Reversed = True
body35 = doc.addObject("PartDesign::Body", "Body034")

# Sketch on XZ plane
sketch35 = body35.newObject("Sketcher::SketchObject", "Sketch034")
sketch35.AttachmentSupport = (doc.getObject("XZ_Plane034"), [""])
sketch35.MapMode = "FlatFace"
sketch35.addGeometry(Part.Circle(App.Vector(-30.842256, -33.164246, 0), App.Vector(0, 0, 1), 3.638812), False)
sketch35.addConstraint(Sketcher.Constraint("Diameter", 0, 7.277624))
sketch35.addConstraint(Sketcher.Constraint("DistanceX", 0, 3, -1, 1, 30.842256))
sketch35.addConstraint(Sketcher.Constraint("DistanceY", 0, 3, -1, 1, 33.164246))
pad35 = body35.newObject("PartDesign::Pad", "Pad034")
pad35.Profile = sketch35
pad35.Length = 6
pad35.Reversed = True
body36 = doc.addObject("PartDesign::Body", "Body035")

# Sketch on XZ plane
sketch36 = body36.newObject("Sketcher::SketchObject", "Sketch035")
sketch36.AttachmentSupport = (doc.getObject("XZ_Plane035"), [""])
sketch36.MapMode = "FlatFace"
sketch36.addGeometry(Part.Circle(App.Vector(-30.842256, -41.351573, 0), App.Vector(0, 0, 1), 3.638812), False)
sketch36.addConstraint(Sketcher.Constraint("Diameter", 0, 7.277624))
sketch36.addConstraint(Sketcher.Constraint("DistanceX", 0, 3, -1, 1, 30.842256))
sketch36.addConstraint(Sketcher.Constraint("DistanceY", 0, 3, -1, 1, 41.351573))
pad36 = body36.newObject("PartDesign::Pad", "Pad035")
pad36.Profile = sketch36
pad36.Length = 6
pad36.Reversed = True
body37 = doc.addObject("PartDesign::Body", "Body036")

# Sketch on XZ plane
sketch37 = body37.newObject("Sketcher::SketchObject", "Sketch036")
sketch37.AttachmentSupport = (doc.getObject("XZ_Plane036"), [""])
sketch37.MapMode = "FlatFace"
sketch37.addGeometry(Part.Circle(App.Vector(-30.842256, -49.5389, 0), App.Vector(0, 0, 1), 3.638812), False)
sketch37.addConstraint(Sketcher.Constraint("Diameter", 0, 7.277624))
sketch37.addConstraint(Sketcher.Constraint("DistanceY", 0, 3, -1, 1, 49.5389))
sketch37.addConstraint(Sketcher.Constraint("DistanceX", 0, 3, -1, 1, 30.842256))
pad37 = body37.newObject("PartDesign::Pad", "Pad036")
pad37.Profile = sketch37
pad37.Length = 6
pad37.Reversed = True
body38 = doc.addObject("PartDesign::Body", "Body037")

# Sketch on XZ plane
sketch38 = body38.newObject("Sketcher::SketchObject", "Sketch037")
sketch38.AttachmentSupport = (doc.getObject("XZ_Plane037"), [""])
sketch38.MapMode = "FlatFace"
sketch38.addGeometry(Part.Circle(App.Vector(-30.842256, -57.726227, 0), App.Vector(0, 0, 1), 3.638812), False)
sketch38.addConstraint(Sketcher.Constraint("Diameter", 0, 7.277624))
sketch38.addConstraint(Sketcher.Constraint("DistanceX", 0, 3, -1, 1, 30.842256))
sketch38.addConstraint(Sketcher.Constraint("DistanceY", 0, 3, -1, 1, 57.726227))
pad38 = body38.newObject("PartDesign::Pad", "Pad037")
pad38.Profile = sketch38
pad38.Length = 6
pad38.Reversed = True
body39 = doc.addObject("PartDesign::Body", "Body038")

# Sketch on XZ plane
sketch39 = body39.newObject("Sketcher::SketchObject", "Sketch038")
sketch39.AttachmentSupport = (doc.getObject("XZ_Plane038"), [""])
sketch39.MapMode = "FlatFace"
sketch39.addGeometry(Part.Circle(App.Vector(-30.842256, -65.913554, 0), App.Vector(0, 0, 1), 3.638812), False)
sketch39.addConstraint(Sketcher.Constraint("Diameter", 0, 7.277624))
sketch39.addConstraint(Sketcher.Constraint("DistanceX", 0, 3, -1, 1, 30.842256))
sketch39.addConstraint(Sketcher.Constraint("DistanceY", 0, 3, -1, 1, 65.913554))
pad39 = body39.newObject("PartDesign::Pad", "Pad038")
pad39.Profile = sketch39
pad39.Length = 6
pad39.Reversed = True
body40 = doc.addObject("PartDesign::Body", "Body039")

# Sketch on XZ plane
sketch40 = body40.newObject("Sketcher::SketchObject", "Sketch039")
sketch40.AttachmentSupport = (doc.getObject("XZ_Plane039"), [""])
sketch40.MapMode = "FlatFace"
sketch40.addGeometry(Part.Circle(App.Vector(-30.842256, -74.100881, 0), App.Vector(0, 0, 1), 3.638812), False)
sketch40.addConstraint(Sketcher.Constraint("Diameter", 0, 7.277624))
sketch40.addConstraint(Sketcher.Constraint("DistanceY", 0, 3, -1, 1, 74.100881))
sketch40.addConstraint(Sketcher.Constraint("DistanceX", 0, 3, -1, 1, 30.842256))
pad40 = body40.newObject("PartDesign::Pad", "Pad039")
pad40.Profile = sketch40
pad40.Length = 6
pad40.Reversed = True
body41 = doc.addObject("PartDesign::Body", "Body040")

# Sketch on XZ plane
sketch41 = body41.newObject("Sketcher::SketchObject", "Sketch040")
sketch41.AttachmentSupport = (doc.getObject("XZ_Plane040"), [""])
sketch41.MapMode = "FlatFace"
sketch41.addGeometry(Part.LineSegment(App.Vector(13.632003, -92.010911, 0), App.Vector(13.632003, -5.010911, 0)), False)
sketch41.addGeometry(Part.LineSegment(App.Vector(13.632003, -5.010911, 0), App.Vector(19.632003, -5.010911, 0)), False)
sketch41.addGeometry(Part.LineSegment(App.Vector(19.632003, -5.010911, 0), App.Vector(19.632003, -92.010911, 0)), False)
sketch41.addGeometry(Part.LineSegment(App.Vector(19.632003, -92.010911, 0), App.Vector(13.632003, -92.010911, 0)), False)
sketch41.addConstraint(Sketcher.Constraint("Coincident", 0, 2, 1, 1))
sketch41.addConstraint(Sketcher.Constraint("Coincident", 1, 2, 2, 1))
sketch41.addConstraint(Sketcher.Constraint("Coincident", 2, 2, 3, 1))
sketch41.addConstraint(Sketcher.Constraint("Coincident", 3, 2, 0, 1))
sketch41.addConstraint(Sketcher.Constraint("Vertical", 0))
sketch41.addConstraint(Sketcher.Constraint("Horizontal", 1))
sketch41.addConstraint(Sketcher.Constraint("Vertical", 2))
sketch41.addConstraint(Sketcher.Constraint("Horizontal", 3))
sketch41.addConstraint(Sketcher.Constraint("DistanceX", 1, 1, 1, 2, 6.0))
sketch41.addConstraint(Sketcher.Constraint("DistanceY", 0, 1, 0, 2, 87.0))
sketch41.addConstraint(Sketcher.Constraint("DistanceY", 0, 2, -1, 1, 5.010911))
sketch41.addConstraint(Sketcher.Constraint("DistanceX", -1, 1, 0, 2, 13.632003))
pad41 = body41.newObject("PartDesign::Pad", "Pad040")
pad41.Profile = sketch41
pad41.Length = 6
pad41.Reversed = True
body42 = doc.addObject("PartDesign::Body", "Body041")

# Sketch on XZ plane
sketch42 = body42.newObject("Sketcher::SketchObject", "Sketch041")
sketch42.AttachmentSupport = (doc.getObject("XZ_Plane041"), [""])
sketch42.MapMode = "FlatFace"
sketch42.addGeometry(Part.LineSegment(App.Vector(6.632003, -92.010911, 0), App.Vector(6.632003, -5.010911, 0)), False)
sketch42.addGeometry(Part.LineSegment(App.Vector(6.632003, -5.010911, 0), App.Vector(12.632003, -5.010911, 0)), False)
sketch42.addGeometry(Part.LineSegment(App.Vector(12.632003, -5.010911, 0), App.Vector(12.632003, -92.010911, 0)), False)
sketch42.addGeometry(Part.LineSegment(App.Vector(12.632003, -92.010911, 0), App.Vector(6.632003, -92.010911, 0)), False)
sketch42.addConstraint(Sketcher.Constraint("Coincident", 0, 2, 1, 1))
sketch42.addConstraint(Sketcher.Constraint("Coincident", 1, 2, 2, 1))
sketch42.addConstraint(Sketcher.Constraint("Coincident", 2, 2, 3, 1))
sketch42.addConstraint(Sketcher.Constraint("Coincident", 3, 2, 0, 1))
sketch42.addConstraint(Sketcher.Constraint("Vertical", 0))
sketch42.addConstraint(Sketcher.Constraint("Horizontal", 1))
sketch42.addConstraint(Sketcher.Constraint("Vertical", 2))
sketch42.addConstraint(Sketcher.Constraint("Horizontal", 3))
sketch42.addConstraint(Sketcher.Constraint("DistanceX", 1, 1, 1, 2, 6.0))
sketch42.addConstraint(Sketcher.Constraint("DistanceY", 0, 1, 0, 2, 87.0))
sketch42.addConstraint(Sketcher.Constraint("DistanceY", 0, 2, -1, 1, 5.010911))
sketch42.addConstraint(Sketcher.Constraint("DistanceX", -1, 1, 0, 2, 6.632003))
pad42 = body42.newObject("PartDesign::Pad", "Pad041")
pad42.Profile = sketch42
pad42.Length = 6
pad42.Reversed = True
body43 = doc.addObject("PartDesign::Body", "Body042")

# Sketch on XZ plane
sketch43 = body43.newObject("Sketcher::SketchObject", "Sketch042")
sketch43.AttachmentSupport = (doc.getObject("XZ_Plane042"), [""])
sketch43.MapMode = "FlatFace"
sketch43.addGeometry(Part.LineSegment(App.Vector(20.632003, -92.010911, 0), App.Vector(20.632003, -5.010911, 0)), False)
sketch43.addGeometry(Part.LineSegment(App.Vector(20.632003, -5.010911, 0), App.Vector(26.632003, -5.010911, 0)), False)
sketch43.addGeometry(Part.LineSegment(App.Vector(26.632003, -5.010911, 0), App.Vector(26.632003, -92.010911, 0)), False)
sketch43.addGeometry(Part.LineSegment(App.Vector(26.632003, -92.010911, 0), App.Vector(20.632003, -92.010911, 0)), False)
sketch43.addConstraint(Sketcher.Constraint("Coincident", 0, 2, 1, 1))
sketch43.addConstraint(Sketcher.Constraint("Coincident", 1, 2, 2, 1))
sketch43.addConstraint(Sketcher.Constraint("Coincident", 2, 2, 3, 1))
sketch43.addConstraint(Sketcher.Constraint("Coincident", 3, 2, 0, 1))
sketch43.addConstraint(Sketcher.Constraint("Vertical", 0))
sketch43.addConstraint(Sketcher.Constraint("Horizontal", 1))
sketch43.addConstraint(Sketcher.Constraint("Vertical", 2))
sketch43.addConstraint(Sketcher.Constraint("Horizontal", 3))
sketch43.addConstraint(Sketcher.Constraint("DistanceX", 1, 1, 1, 2, 6.0))
sketch43.addConstraint(Sketcher.Constraint("DistanceY", 0, 1, 0, 2, 87.0))
sketch43.addConstraint(Sketcher.Constraint("DistanceY", 0, 2, -1, 1, 5.010911))
sketch43.addConstraint(Sketcher.Constraint("DistanceX", -1, 1, 0, 2, 20.632003))
pad43 = body43.newObject("PartDesign::Pad", "Pad042")
pad43.Profile = sketch43
pad43.Length = 6
pad43.Reversed = True
body44 = doc.addObject("PartDesign::Body", "Body043")

# Sketch on XZ plane
sketch44 = body44.newObject("Sketcher::SketchObject", "Sketch043")
sketch44.AttachmentSupport = (doc.getObject("XZ_Plane043"), [""])
sketch44.MapMode = "FlatFace"
sketch44.addGeometry(Part.LineSegment(App.Vector(27.632003, -92.010911, 0), App.Vector(27.632003, -5.010911, 0)), False)
sketch44.addGeometry(Part.LineSegment(App.Vector(27.632003, -5.010911, 0), App.Vector(33.632003, -5.010911, 0)), False)
sketch44.addGeometry(Part.LineSegment(App.Vector(33.632003, -5.010911, 0), App.Vector(33.632003, -92.010911, 0)), False)
sketch44.addGeometry(Part.LineSegment(App.Vector(33.632003, -92.010911, 0), App.Vector(27.632003, -92.010911, 0)), False)
sketch44.addConstraint(Sketcher.Constraint("Coincident", 0, 2, 1, 1))
sketch44.addConstraint(Sketcher.Constraint("Coincident", 1, 2, 2, 1))
sketch44.addConstraint(Sketcher.Constraint("Coincident", 2, 2, 3, 1))
sketch44.addConstraint(Sketcher.Constraint("Coincident", 3, 2, 0, 1))
sketch44.addConstraint(Sketcher.Constraint("Vertical", 0))
sketch44.addConstraint(Sketcher.Constraint("Horizontal", 1))
sketch44.addConstraint(Sketcher.Constraint("Vertical", 2))
sketch44.addConstraint(Sketcher.Constraint("Horizontal", 3))
sketch44.addConstraint(Sketcher.Constraint("DistanceX", 1, 1, 1, 2, 6.0))
sketch44.addConstraint(Sketcher.Constraint("DistanceY", 0, 1, 0, 2, 87.0))
sketch44.addConstraint(Sketcher.Constraint("DistanceY", 0, 2, -1, 1, 5.010911))
sketch44.addConstraint(Sketcher.Constraint("DistanceX", -1, 1, 0, 2, 27.632003))
pad44 = body44.newObject("PartDesign::Pad", "Pad043")
pad44.Profile = sketch44
pad44.Length = 6
pad44.Reversed = True
body45 = doc.addObject("PartDesign::Body", "Body044")

# Sketch on XZ plane
sketch45 = body45.newObject("Sketcher::SketchObject", "Sketch044")
sketch45.AttachmentSupport = (doc.getObject("XZ_Plane044"), [""])
sketch45.MapMode = "FlatFace"
sketch45.addGeometry(Part.LineSegment(App.Vector(34.632003, -92.010911, 0), App.Vector(34.632003, -5.010911, 0)), False)
sketch45.addGeometry(Part.LineSegment(App.Vector(34.632003, -5.010911, 0), App.Vector(40.632003, -5.010911, 0)), False)
sketch45.addGeometry(Part.LineSegment(App.Vector(40.632003, -5.010911, 0), App.Vector(40.632003, -92.010911, 0)), False)
sketch45.addGeometry(Part.LineSegment(App.Vector(40.632003, -92.010911, 0), App.Vector(34.632003, -92.010911, 0)), False)
sketch45.addConstraint(Sketcher.Constraint("Coincident", 0, 2, 1, 1))
sketch45.addConstraint(Sketcher.Constraint("Coincident", 1, 2, 2, 1))
sketch45.addConstraint(Sketcher.Constraint("Coincident", 2, 2, 3, 1))
sketch45.addConstraint(Sketcher.Constraint("Coincident", 3, 2, 0, 1))
sketch45.addConstraint(Sketcher.Constraint("Vertical", 0))
sketch45.addConstraint(Sketcher.Constraint("Horizontal", 1))
sketch45.addConstraint(Sketcher.Constraint("Vertical", 2))
sketch45.addConstraint(Sketcher.Constraint("Horizontal", 3))
sketch45.addConstraint(Sketcher.Constraint("DistanceX", 1, 1, 1, 2, 6.0))
sketch45.addConstraint(Sketcher.Constraint("DistanceY", 0, 1, 0, 2, 87.0))
sketch45.addConstraint(Sketcher.Constraint("DistanceY", 0, 2, -1, 1, 5.010911))
sketch45.addConstraint(Sketcher.Constraint("DistanceX", -1, 1, 0, 2, 34.632003))
pad45 = body45.newObject("PartDesign::Pad", "Pad044")
pad45.Profile = sketch45
pad45.Length = 6
pad45.Reversed = True
body46 = doc.addObject("PartDesign::Body", "Body045")

# Sketch on XZ plane
sketch46 = body46.newObject("Sketcher::SketchObject", "Sketch045")
sketch46.AttachmentSupport = (doc.getObject("XZ_Plane045"), [""])
sketch46.MapMode = "FlatFace"
sketch46.addGeometry(Part.LineSegment(App.Vector(41.632003, -92.010911, 0), App.Vector(41.632003, -5.010911, 0)), False)
sketch46.addGeometry(Part.LineSegment(App.Vector(41.632003, -5.010911, 0), App.Vector(47.632003, -5.010911, 0)), False)
sketch46.addGeometry(Part.LineSegment(App.Vector(47.632003, -5.010911, 0), App.Vector(47.632003, -92.010911, 0)), False)
sketch46.addGeometry(Part.LineSegment(App.Vector(47.632003, -92.010911, 0), App.Vector(41.632003, -92.010911, 0)), False)
sketch46.addConstraint(Sketcher.Constraint("Coincident", 0, 2, 1, 1))
sketch46.addConstraint(Sketcher.Constraint("Coincident", 1, 2, 2, 1))
sketch46.addConstraint(Sketcher.Constraint("Coincident", 2, 2, 3, 1))
sketch46.addConstraint(Sketcher.Constraint("Coincident", 3, 2, 0, 1))
sketch46.addConstraint(Sketcher.Constraint("Vertical", 0))
sketch46.addConstraint(Sketcher.Constraint("Horizontal", 1))
sketch46.addConstraint(Sketcher.Constraint("Vertical", 2))
sketch46.addConstraint(Sketcher.Constraint("Horizontal", 3))
sketch46.addConstraint(Sketcher.Constraint("DistanceX", 1, 1, 1, 2, 6.0))
sketch46.addConstraint(Sketcher.Constraint("DistanceY", 0, 1, 0, 2, 87.0))
sketch46.addConstraint(Sketcher.Constraint("DistanceY", 0, 2, -1, 1, 5.010911))
sketch46.addConstraint(Sketcher.Constraint("DistanceX", -1, 1, 0, 2, 41.632003))
pad46 = body46.newObject("PartDesign::Pad", "Pad045")
pad46.Profile = sketch46
pad46.Length = 6
pad46.Reversed = True

doc.recompute()
